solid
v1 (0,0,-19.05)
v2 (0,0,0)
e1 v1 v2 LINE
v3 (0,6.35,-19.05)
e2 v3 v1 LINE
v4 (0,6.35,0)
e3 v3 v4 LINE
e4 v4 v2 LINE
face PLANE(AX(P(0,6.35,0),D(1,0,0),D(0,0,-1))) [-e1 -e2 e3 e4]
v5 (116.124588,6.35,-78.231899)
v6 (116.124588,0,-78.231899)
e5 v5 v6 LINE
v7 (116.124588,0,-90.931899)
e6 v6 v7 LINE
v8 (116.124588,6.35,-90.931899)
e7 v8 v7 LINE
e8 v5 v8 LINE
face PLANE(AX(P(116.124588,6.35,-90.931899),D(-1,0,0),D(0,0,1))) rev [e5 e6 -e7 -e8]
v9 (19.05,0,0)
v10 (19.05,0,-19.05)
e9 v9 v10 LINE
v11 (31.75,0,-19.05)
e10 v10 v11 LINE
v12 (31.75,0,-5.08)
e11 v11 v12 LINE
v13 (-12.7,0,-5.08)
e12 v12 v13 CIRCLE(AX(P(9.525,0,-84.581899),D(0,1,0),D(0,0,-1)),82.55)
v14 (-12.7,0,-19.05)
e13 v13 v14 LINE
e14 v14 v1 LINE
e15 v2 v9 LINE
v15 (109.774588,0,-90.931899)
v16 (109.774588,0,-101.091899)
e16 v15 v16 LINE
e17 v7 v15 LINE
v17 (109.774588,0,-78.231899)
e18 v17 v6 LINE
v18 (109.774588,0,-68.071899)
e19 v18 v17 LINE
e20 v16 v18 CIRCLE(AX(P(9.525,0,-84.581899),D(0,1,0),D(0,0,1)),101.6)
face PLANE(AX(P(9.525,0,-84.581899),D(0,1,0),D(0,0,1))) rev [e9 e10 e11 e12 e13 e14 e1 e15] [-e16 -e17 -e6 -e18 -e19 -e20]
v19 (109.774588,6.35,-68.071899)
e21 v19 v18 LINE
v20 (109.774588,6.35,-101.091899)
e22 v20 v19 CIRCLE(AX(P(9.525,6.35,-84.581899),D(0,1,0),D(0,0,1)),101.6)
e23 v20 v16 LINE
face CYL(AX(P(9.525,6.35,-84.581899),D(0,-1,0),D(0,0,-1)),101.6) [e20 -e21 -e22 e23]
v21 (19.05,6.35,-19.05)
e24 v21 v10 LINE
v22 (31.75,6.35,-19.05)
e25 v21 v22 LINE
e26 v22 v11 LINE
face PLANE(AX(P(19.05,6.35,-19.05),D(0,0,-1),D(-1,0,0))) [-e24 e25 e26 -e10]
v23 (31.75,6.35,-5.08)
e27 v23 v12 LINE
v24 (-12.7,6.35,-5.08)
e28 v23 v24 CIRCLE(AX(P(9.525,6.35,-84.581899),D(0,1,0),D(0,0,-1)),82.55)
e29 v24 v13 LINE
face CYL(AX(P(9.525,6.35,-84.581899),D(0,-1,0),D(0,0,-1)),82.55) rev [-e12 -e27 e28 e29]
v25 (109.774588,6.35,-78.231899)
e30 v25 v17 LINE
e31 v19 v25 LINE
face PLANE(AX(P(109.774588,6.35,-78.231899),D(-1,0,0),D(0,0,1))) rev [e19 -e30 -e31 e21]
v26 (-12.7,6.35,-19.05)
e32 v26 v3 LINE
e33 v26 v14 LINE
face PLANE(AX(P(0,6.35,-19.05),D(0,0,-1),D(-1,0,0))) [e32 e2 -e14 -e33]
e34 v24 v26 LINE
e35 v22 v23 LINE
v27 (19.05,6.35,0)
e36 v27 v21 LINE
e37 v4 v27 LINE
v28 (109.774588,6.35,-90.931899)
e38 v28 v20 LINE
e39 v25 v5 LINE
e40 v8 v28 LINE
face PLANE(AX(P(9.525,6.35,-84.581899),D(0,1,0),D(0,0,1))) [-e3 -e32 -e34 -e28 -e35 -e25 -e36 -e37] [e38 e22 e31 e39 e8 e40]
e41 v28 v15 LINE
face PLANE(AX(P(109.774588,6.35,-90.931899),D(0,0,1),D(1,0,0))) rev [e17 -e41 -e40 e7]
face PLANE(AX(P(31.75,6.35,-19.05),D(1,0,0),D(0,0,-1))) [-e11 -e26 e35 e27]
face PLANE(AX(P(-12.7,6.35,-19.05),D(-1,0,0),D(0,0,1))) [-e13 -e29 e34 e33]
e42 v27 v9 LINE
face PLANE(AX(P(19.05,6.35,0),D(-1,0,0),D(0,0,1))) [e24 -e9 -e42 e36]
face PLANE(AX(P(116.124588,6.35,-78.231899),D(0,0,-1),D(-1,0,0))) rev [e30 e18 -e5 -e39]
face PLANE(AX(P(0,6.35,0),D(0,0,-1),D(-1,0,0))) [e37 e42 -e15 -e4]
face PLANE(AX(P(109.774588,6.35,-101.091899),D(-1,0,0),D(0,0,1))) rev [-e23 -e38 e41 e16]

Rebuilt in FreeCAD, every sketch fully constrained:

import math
import FreeCAD as App
import Part
import Sketcher
Q = App.Units.Quantity

doc = App.newDocument("Part")
body = doc.addObject("PartDesign::Body", "Body")

# Sketch on XZ plane
sketch1 = doc.addObject("Sketcher::SketchObject", "Sketch")
body.addObject(sketch1)
sketch1.AttachmentSupport = (doc.XZ_Plane, [""])
sketch1.MapMode = "FlatFace"
sketch1.addGeometry([
    Part.LineSegment(App.Vector(110, -91, 0), App.Vector(110, -101, 0)),  # 0
    Part.ArcOfCircle(Part.Circle(App.Vector(10, -85, 0), App.Vector(0, 0, 1), 102), math.radians(9), math.radians(351)),  # 1
    Part.LineSegment(App.Vector(110, -68, 0), App.Vector(110, -78, 0)),  # 2
    Part.LineSegment(App.Vector(110, -78, 0), App.Vector(116, -78, 0)),  # 3
    Part.LineSegment(App.Vector(116, -78, 0), App.Vector(116, -91, 0)),  # 4
    Part.LineSegment(App.Vector(116, -91, 0), App.Vector(110, -91, 0)),  # 5
    Part.LineSegment(App.Vector(0, 0, 0), App.Vector(0, -19, 0)),  # 6
    Part.LineSegment(App.Vector(0, -19, 0), App.Vector(-13, -19, 0)),  # 7
    Part.LineSegment(App.Vector(-13, -19, 0), App.Vector(-13, -5, 0)),  # 8
    Part.ArcOfCircle(Part.Circle(App.Vector(10, -85, 0), App.Vector(0, 0, 1), 83), math.radians(106), math.radians(434)),  # 9
    Part.LineSegment(App.Vector(32, -5, 0), App.Vector(32, -19, 0)),  # 10
    Part.LineSegment(App.Vector(32, -19, 0), App.Vector(19, -19, 0)),  # 11
    Part.LineSegment(App.Vector(19, -19, 0), App.Vector(19, 0, 0)),  # 12
    Part.LineSegment(App.Vector(19, 0, 0), App.Vector(0, 0, 0)),  # 13
], False)
sketch1.addConstraint([
    Sketcher.Constraint("Coincident", 0, 2, 1, 2),
    Sketcher.Constraint("Coincident", 1, 1, 2, 1),
    Sketcher.Constraint("Coincident", 2, 2, 3, 1),
    Sketcher.Constraint("Coincident", 3, 2, 4, 1),
    Sketcher.Constraint("Coincident", 4, 2, 5, 1),
    Sketcher.Constraint("Coincident", 5, 2, 0, 1),
    Sketcher.Constraint("Coincident", 6, 2, 7, 1),
    Sketcher.Constraint("Coincident", 7, 2, 8, 1),
    Sketcher.Constraint("Coincident", 8, 2, 9, 1),
    Sketcher.Constraint("Coincident", 9, 2, 10, 1),
    Sketcher.Constraint("Coincident", 10, 2, 11, 1),
    Sketcher.Constraint("Coincident", 11, 2, 12, 1),
    Sketcher.Constraint("Coincident", 12, 2, 13, 1),
    Sketcher.Constraint("Coincident", 13, 2, 6, 1),
    Sketcher.Constraint("Vertical", 0),
    Sketcher.Constraint("Vertical", 2),
    Sketcher.Constraint("Horizontal", 3),
    Sketcher.Constraint("Vertical", 4),
    Sketcher.Constraint("Horizontal", 5),
    Sketcher.Constraint("Vertical", 6),
    Sketcher.Constraint("Horizontal", 7),
    Sketcher.Constraint("Vertical", 8),
    Sketcher.Constraint("Vertical", 10),
    Sketcher.Constraint("Horizontal", 11),
    Sketcher.Constraint("Vertical", 12),
    Sketcher.Constraint("Horizontal", 13),
    Sketcher.Constraint("Coincident", 13, 2, -1, 1),
    Sketcher.Constraint("Coincident", 9, 3, 1, 3),
    Sketcher.Constraint("Horizontal", 8, 2, 9, 2),
    Sketcher.Constraint("Horizontal", 7, 2, 10, 2),
    Sketcher.Constraint("Vertical", 0, 2, 1, 1),
    Sketcher.Constraint("Equal", 7, 11),
    Sketcher.Constraint("Equal", 0, 2),
    Sketcher.Constraint("Equal", 11, 4),
    Sketcher.Constraint("Equal", 13, 6),
    Sketcher.Constraint("Radius", 1, Q("4 in")),
    Sketcher.Constraint("Radius", 9, Q("3.25 in")),
    Sketcher.Constraint("DistanceX", 7, 2, 7, 1, Q("0.5 in")),
    Sketcher.Constraint("DistanceY", 0, 2, 0, 1, Q("0.4 in")),
    Sketcher.Constraint("DistanceX", 3, 1, 3, 2, Q("0.25 in")),
    Sketcher.Constraint("DistanceX", 13, 2, 13, 1, Q("0.75 in")),
    Sketcher.Constraint("DistanceY", 8, 1, 8, 2, Q("0.55 in")),
])
pad1 = doc.addObject("PartDesign::Pad", "Pad")
body.addObject(pad1)
pad1.Profile = sketch1
pad1.Length = Q("0.25 in")
pad1.Reversed = True

doc.recompute()
